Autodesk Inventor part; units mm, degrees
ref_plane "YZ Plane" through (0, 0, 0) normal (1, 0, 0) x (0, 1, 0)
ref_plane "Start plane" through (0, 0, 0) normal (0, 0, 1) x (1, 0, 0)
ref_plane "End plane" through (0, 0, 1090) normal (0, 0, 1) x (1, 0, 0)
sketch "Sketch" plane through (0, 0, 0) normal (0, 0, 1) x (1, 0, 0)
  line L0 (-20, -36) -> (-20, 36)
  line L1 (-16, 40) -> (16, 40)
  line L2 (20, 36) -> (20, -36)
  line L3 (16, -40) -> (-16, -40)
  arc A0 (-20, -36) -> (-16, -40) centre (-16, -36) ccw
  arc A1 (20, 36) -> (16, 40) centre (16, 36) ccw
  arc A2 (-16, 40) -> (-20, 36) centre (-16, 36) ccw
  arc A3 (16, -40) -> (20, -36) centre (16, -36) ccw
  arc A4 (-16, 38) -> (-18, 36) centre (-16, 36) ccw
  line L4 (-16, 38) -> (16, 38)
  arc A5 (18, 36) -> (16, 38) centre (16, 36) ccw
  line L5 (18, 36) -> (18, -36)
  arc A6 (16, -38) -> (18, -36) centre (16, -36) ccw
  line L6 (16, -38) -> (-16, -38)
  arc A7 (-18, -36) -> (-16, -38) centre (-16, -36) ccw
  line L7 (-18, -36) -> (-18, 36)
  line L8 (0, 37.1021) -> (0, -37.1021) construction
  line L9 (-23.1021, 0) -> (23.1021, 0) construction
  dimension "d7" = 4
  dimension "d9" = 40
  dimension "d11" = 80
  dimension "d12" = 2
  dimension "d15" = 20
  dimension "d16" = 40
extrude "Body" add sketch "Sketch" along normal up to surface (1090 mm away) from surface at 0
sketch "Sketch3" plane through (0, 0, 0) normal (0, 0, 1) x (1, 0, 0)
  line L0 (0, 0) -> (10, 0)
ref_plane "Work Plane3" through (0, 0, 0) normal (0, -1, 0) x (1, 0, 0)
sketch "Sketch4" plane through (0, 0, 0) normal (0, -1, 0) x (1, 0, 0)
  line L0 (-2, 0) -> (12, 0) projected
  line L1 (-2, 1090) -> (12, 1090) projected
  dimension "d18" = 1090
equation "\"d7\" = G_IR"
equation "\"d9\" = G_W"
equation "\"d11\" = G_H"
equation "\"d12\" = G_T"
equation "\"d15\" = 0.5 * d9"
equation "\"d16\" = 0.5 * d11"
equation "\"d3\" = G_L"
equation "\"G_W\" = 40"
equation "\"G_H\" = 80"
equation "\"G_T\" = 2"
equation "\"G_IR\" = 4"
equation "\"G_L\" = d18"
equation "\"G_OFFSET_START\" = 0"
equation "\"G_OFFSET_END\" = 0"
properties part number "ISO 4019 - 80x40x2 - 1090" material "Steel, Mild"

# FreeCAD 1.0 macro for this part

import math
import FreeCAD as App
import Part
import Sketcher
from FreeCAD import Vector

doc = App.newDocument("Part")
body = doc.addObject("PartDesign::Body", "Body")

sketch1 = doc.addObject("Sketcher::SketchObject", "Sketch")
body.addObject(sketch1)
sketch1.AttachmentSupport = (doc.XY_Plane, [""])
sketch1.MapMode = "FlatFace"
sketch1.addGeometry(Part.LineSegment(Vector(-20, 36, 0), Vector(-20, -36, 0)), False)
sketch1.addGeometry(Part.ArcOfCircle(Part.Circle(Vector(-16, -36, 0), Vector(0, 0, 1), 4), math.radians(180), math.radians(270)), False)
sketch1.addGeometry(Part.LineSegment(Vector(-16, -40, 0), Vector(16, -40, 0)), False)
sketch1.addGeometry(Part.ArcOfCircle(Part.Circle(Vector(16, -36, 0), Vector(0, 0, 1), 4), math.radians(-90), math.radians(0)), False)
sketch1.addGeometry(Part.LineSegment(Vector(20, -36, 0), Vector(20, 36, 0)), False)
sketch1.addGeometry(Part.ArcOfCircle(Part.Circle(Vector(16, 36, 0), Vector(0, 0, 1), 4), math.radians(0), math.radians(90)), False)
sketch1.addGeometry(Part.LineSegment(Vector(16, 40, 0), Vector(-16, 40, 0)), False)
sketch1.addGeometry(Part.ArcOfCircle(Part.Circle(Vector(-16, 36, 0), Vector(0, 0, 1), 4), math.radians(90), math.radians(180)), False)
sketch1.addGeometry(Part.ArcOfCircle(Part.Circle(Vector(-16, 36, 0), Vector(0, 0, 1), 2), math.radians(90), math.radians(180)), False)
sketch1.addGeometry(Part.LineSegment(Vector(-16, 38, 0), Vector(16, 38, 0)), False)
sketch1.addGeometry(Part.ArcOfCircle(Part.Circle(Vector(16, 36, 0), Vector(0, 0, 1), 2), math.radians(0), math.radians(90)), False)
sketch1.addGeometry(Part.LineSegment(Vector(18, 36, 0), Vector(18, -36, 0)), False)
sketch1.addGeometry(Part.ArcOfCircle(Part.Circle(Vector(16, -36, 0), Vector(0, 0, 1), 2), math.radians(-90), math.radians(0)), False)
sketch1.addGeometry(Part.LineSegment(Vector(16, -38, 0), Vector(-16, -38, 0)), False)
sketch1.addGeometry(Part.ArcOfCircle(Part.Circle(Vector(-16, -36, 0), Vector(0, 0, 1), 2), math.radians(180), math.radians(270)), False)
sketch1.addGeometry(Part.LineSegment(Vector(-18, -36, 0), Vector(-18, 36, 0)), False)
sketch1.addConstraint(Sketcher.Constraint("Tangent", 0, 2, 1, 1))
sketch1.addConstraint(Sketcher.Constraint("Tangent", 1, 2, 2, 1))
sketch1.addConstraint(Sketcher.Constraint("Tangent", 2, 2, 3, 1))
sketch1.addConstraint(Sketcher.Constraint("Tangent", 3, 2, 4, 1))
sketch1.addConstraint(Sketcher.Constraint("Tangent", 4, 2, 5, 1))
sketch1.addConstraint(Sketcher.Constraint("Tangent", 5, 2, 6, 1))
sketch1.addConstraint(Sketcher.Constraint("Tangent", 6, 2, 7, 1))
sketch1.addConstraint(Sketcher.Constraint("Tangent", 7, 2, 0, 1))
sketch1.addConstraint(Sketcher.Constraint("Tangent", 8, 1, 9, 1))
sketch1.addConstraint(Sketcher.Constraint("Tangent", 9, 2, 10, 2))
sketch1.addConstraint(Sketcher.Constraint("Tangent", 10, 1, 11, 1))
sketch1.addConstraint(Sketcher.Constraint("Tangent", 11, 2, 12, 2))
sketch1.addConstraint(Sketcher.Constraint("Tangent", 12, 1, 13, 1))
sketch1.addConstraint(Sketcher.Constraint("Tangent", 13, 2, 14, 2))
sketch1.addConstraint(Sketcher.Constraint("Tangent", 14, 1, 15, 1))
sketch1.addConstraint(Sketcher.Constraint("Tangent", 15, 2, 8, 2))
sketch1.addConstraint(Sketcher.Constraint("Vertical", 0))
sketch1.addConstraint(Sketcher.Constraint("Horizontal", 2))
sketch1.addConstraint(Sketcher.Constraint("Vertical", 4))
sketch1.addConstraint(Sketcher.Constraint("Horizontal", 6))
sketch1.addConstraint(Sketcher.Constraint("Horizontal", 9))
sketch1.addConstraint(Sketcher.Constraint("Vertical", 11))
sketch1.addConstraint(Sketcher.Constraint("Horizontal", 13))
sketch1.addConstraint(Sketcher.Constraint("Vertical", 15))
sketch1.addConstraint(Sketcher.Constraint("Coincident", 8, 3, 7, 3))
sketch1.addConstraint(Sketcher.Constraint("Coincident", 10, 3, 5, 3))
sketch1.addConstraint(Sketcher.Constraint("Coincident", 12, 3, 3, 3))
sketch1.addConstraint(Sketcher.Constraint("Equal", 1, 3))
sketch1.addConstraint(Sketcher.Constraint("Equal", 3, 5))
sketch1.addConstraint(Sketcher.Constraint("Equal", 5, 7))
sketch1.addConstraint(Sketcher.Constraint("Equal", 12, 14))
sketch1.addConstraint(Sketcher.Constraint("Symmetric", 1, 3, 5, 3, -1, 1))
sketch1.addConstraint(Sketcher.Constraint("Radius", 1, 4.0))
sketch1.addConstraint(Sketcher.Constraint("Radius", 8, 2.0))
sketch1.addConstraint(Sketcher.Constraint("DistanceX", 0, 2, -1, 1, 20.0))
sketch1.addConstraint(Sketcher.Constraint("DistanceY", 1, 2, -1, 1, 40.0))
pad1 = doc.addObject("PartDesign::Pad", "Pad")
body.addObject(pad1)
pad1.Profile = sketch1
pad1.Length = 1090

doc.recompute()
